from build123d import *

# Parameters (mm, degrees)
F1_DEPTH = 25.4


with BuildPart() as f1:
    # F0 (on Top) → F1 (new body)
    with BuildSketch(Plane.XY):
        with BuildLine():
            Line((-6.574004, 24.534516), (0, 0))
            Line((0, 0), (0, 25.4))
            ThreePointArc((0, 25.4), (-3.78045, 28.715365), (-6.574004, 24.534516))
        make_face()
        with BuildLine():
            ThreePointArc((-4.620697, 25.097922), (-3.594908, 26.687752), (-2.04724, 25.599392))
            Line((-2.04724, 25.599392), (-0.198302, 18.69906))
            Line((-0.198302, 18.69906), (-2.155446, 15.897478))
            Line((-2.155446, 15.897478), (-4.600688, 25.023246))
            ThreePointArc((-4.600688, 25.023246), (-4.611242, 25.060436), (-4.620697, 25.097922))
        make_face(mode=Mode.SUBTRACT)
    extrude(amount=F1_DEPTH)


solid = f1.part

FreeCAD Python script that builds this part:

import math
import FreeCAD as App
import Part
import Sketcher
from FreeCAD import Vector
Q = App.Units.Quantity

doc = App.newDocument("Part")
params = doc.addObject("Spreadsheet::Sheet", "Params")
for row, (alias, value) in enumerate([
    ("sketch1_height", "1 in"),
    ("sketch1_length", "0.28125 in"),
    ("pad1_length", "1 in"),
], start=1):
    params.set(f"A{row}", alias)
    params.set(f"B{row}", "=" + value)
    params.setAlias(f"B{row}", alias)

body = doc.addObject("PartDesign::Body", "Body")

# Sketch on XY plane
sketch1 = doc.addObject("Sketcher::SketchObject", "Sketch")
body.addObject(sketch1)
sketch1.AttachmentSupport = (doc.XY_Plane, [""])
sketch1.MapMode = "FlatFace"
sketch1.addGeometry([
    Part.LineSegment(Vector(-6.57, 24.53, 0), Vector(0, 0, 0)),  # 0
    Part.LineSegment(Vector(0, 0, 0), Vector(0, 25.4, 0)),  # 1
    Part.ArcOfCircle(Part.Circle(Vector(-3.34, 25.4, 0), Vector(0, 0, 1), 3.34), math.radians(0), math.radians(195)),  # 2
    Part.ArcOfCircle(Part.Circle(Vector(-3.34, 25.4, 0), Vector(0, 0, 1), 1.31), math.radians(-166.69), math.radians(-163.31)),  # 3
    Part.ArcOfCircle(Part.Circle(Vector(-3.34, 25.4, 0), Vector(0, 0, 1), 1.31), math.radians(9), math.radians(193)),  # 4
    Part.LineSegment(Vector(-2.05, 25.6, 0), Vector(-0.2, 18.7, 0)),  # 5
    Part.LineSegment(Vector(-0.2, 18.7, 0), Vector(-2.16, 15.9, 0)),  # 6
    Part.LineSegment(Vector(-2.16, 15.9, 0), Vector(-4.6, 25.02, 0)),  # 7
], False)
sketch1.addConstraint([
    Sketcher.Constraint("Coincident", 0, 2, 1, 1),
    Sketcher.Constraint("Tangent", 1, 2, 2, 1),
    Sketcher.Constraint("Tangent", 2, 2, 0, 1),
    Sketcher.Constraint("Coincident", 3, 1, 4, 2),
    Sketcher.Constraint("Coincident", 4, 1, 5, 1),
    Sketcher.Constraint("Coincident", 5, 2, 6, 1),
    Sketcher.Constraint("Coincident", 6, 2, 7, 1),
    Sketcher.Constraint("Coincident", 7, 2, 3, 2),
    Sketcher.Constraint("Vertical", 1),
    Sketcher.Constraint("Coincident", 0, 2, -1, 1),
    Sketcher.Constraint("Coincident", 4, 3, 2, 3),
    Sketcher.Constraint("Parallel", 0, 5),
    Sketcher.Constraint("Parallel", 5, 7),
    Sketcher.Constraint("DistanceY", 1, 1, 1, 2, Q("1 in")),
    Sketcher.Constraint("Angle", 0, Q("-74.999999 deg")),
    Sketcher.Constraint("Distance", 5, Q("0.28125 in")),
    Sketcher.Constraint("DistanceX", 4, 1, -1, 1, Q("0.0806 in")),
    Sketcher.Constraint("Radius", 3, Q("1.313116 mm")),
    Sketcher.Constraint("Radius", 4, Q("1.311973 mm")),
    Sketcher.Constraint("DistanceY", 3, 3, 4, 1, Q("0.199102 mm")),
    Sketcher.Constraint("Distance", 7, Q("9.44769 mm")),
    Sketcher.Constraint("DistanceY", -1, 1, 3, 1, Q("25.097922 mm")),
    Sketcher.Constraint("DistanceY", 6, 2, 5, 2, Q("2.801582 mm")),
])
sketch1.setExpression("Constraints[13]", "Params.sketch1_height")
sketch1.setExpression("Constraints[15]", "Params.sketch1_length")
pad1 = doc.addObject("PartDesign::Pad", "Pad")
body.addObject(pad1)
pad1.Profile = sketch1
pad1.setExpression("Length", "Params.pad1_length")

doc.recompute()
